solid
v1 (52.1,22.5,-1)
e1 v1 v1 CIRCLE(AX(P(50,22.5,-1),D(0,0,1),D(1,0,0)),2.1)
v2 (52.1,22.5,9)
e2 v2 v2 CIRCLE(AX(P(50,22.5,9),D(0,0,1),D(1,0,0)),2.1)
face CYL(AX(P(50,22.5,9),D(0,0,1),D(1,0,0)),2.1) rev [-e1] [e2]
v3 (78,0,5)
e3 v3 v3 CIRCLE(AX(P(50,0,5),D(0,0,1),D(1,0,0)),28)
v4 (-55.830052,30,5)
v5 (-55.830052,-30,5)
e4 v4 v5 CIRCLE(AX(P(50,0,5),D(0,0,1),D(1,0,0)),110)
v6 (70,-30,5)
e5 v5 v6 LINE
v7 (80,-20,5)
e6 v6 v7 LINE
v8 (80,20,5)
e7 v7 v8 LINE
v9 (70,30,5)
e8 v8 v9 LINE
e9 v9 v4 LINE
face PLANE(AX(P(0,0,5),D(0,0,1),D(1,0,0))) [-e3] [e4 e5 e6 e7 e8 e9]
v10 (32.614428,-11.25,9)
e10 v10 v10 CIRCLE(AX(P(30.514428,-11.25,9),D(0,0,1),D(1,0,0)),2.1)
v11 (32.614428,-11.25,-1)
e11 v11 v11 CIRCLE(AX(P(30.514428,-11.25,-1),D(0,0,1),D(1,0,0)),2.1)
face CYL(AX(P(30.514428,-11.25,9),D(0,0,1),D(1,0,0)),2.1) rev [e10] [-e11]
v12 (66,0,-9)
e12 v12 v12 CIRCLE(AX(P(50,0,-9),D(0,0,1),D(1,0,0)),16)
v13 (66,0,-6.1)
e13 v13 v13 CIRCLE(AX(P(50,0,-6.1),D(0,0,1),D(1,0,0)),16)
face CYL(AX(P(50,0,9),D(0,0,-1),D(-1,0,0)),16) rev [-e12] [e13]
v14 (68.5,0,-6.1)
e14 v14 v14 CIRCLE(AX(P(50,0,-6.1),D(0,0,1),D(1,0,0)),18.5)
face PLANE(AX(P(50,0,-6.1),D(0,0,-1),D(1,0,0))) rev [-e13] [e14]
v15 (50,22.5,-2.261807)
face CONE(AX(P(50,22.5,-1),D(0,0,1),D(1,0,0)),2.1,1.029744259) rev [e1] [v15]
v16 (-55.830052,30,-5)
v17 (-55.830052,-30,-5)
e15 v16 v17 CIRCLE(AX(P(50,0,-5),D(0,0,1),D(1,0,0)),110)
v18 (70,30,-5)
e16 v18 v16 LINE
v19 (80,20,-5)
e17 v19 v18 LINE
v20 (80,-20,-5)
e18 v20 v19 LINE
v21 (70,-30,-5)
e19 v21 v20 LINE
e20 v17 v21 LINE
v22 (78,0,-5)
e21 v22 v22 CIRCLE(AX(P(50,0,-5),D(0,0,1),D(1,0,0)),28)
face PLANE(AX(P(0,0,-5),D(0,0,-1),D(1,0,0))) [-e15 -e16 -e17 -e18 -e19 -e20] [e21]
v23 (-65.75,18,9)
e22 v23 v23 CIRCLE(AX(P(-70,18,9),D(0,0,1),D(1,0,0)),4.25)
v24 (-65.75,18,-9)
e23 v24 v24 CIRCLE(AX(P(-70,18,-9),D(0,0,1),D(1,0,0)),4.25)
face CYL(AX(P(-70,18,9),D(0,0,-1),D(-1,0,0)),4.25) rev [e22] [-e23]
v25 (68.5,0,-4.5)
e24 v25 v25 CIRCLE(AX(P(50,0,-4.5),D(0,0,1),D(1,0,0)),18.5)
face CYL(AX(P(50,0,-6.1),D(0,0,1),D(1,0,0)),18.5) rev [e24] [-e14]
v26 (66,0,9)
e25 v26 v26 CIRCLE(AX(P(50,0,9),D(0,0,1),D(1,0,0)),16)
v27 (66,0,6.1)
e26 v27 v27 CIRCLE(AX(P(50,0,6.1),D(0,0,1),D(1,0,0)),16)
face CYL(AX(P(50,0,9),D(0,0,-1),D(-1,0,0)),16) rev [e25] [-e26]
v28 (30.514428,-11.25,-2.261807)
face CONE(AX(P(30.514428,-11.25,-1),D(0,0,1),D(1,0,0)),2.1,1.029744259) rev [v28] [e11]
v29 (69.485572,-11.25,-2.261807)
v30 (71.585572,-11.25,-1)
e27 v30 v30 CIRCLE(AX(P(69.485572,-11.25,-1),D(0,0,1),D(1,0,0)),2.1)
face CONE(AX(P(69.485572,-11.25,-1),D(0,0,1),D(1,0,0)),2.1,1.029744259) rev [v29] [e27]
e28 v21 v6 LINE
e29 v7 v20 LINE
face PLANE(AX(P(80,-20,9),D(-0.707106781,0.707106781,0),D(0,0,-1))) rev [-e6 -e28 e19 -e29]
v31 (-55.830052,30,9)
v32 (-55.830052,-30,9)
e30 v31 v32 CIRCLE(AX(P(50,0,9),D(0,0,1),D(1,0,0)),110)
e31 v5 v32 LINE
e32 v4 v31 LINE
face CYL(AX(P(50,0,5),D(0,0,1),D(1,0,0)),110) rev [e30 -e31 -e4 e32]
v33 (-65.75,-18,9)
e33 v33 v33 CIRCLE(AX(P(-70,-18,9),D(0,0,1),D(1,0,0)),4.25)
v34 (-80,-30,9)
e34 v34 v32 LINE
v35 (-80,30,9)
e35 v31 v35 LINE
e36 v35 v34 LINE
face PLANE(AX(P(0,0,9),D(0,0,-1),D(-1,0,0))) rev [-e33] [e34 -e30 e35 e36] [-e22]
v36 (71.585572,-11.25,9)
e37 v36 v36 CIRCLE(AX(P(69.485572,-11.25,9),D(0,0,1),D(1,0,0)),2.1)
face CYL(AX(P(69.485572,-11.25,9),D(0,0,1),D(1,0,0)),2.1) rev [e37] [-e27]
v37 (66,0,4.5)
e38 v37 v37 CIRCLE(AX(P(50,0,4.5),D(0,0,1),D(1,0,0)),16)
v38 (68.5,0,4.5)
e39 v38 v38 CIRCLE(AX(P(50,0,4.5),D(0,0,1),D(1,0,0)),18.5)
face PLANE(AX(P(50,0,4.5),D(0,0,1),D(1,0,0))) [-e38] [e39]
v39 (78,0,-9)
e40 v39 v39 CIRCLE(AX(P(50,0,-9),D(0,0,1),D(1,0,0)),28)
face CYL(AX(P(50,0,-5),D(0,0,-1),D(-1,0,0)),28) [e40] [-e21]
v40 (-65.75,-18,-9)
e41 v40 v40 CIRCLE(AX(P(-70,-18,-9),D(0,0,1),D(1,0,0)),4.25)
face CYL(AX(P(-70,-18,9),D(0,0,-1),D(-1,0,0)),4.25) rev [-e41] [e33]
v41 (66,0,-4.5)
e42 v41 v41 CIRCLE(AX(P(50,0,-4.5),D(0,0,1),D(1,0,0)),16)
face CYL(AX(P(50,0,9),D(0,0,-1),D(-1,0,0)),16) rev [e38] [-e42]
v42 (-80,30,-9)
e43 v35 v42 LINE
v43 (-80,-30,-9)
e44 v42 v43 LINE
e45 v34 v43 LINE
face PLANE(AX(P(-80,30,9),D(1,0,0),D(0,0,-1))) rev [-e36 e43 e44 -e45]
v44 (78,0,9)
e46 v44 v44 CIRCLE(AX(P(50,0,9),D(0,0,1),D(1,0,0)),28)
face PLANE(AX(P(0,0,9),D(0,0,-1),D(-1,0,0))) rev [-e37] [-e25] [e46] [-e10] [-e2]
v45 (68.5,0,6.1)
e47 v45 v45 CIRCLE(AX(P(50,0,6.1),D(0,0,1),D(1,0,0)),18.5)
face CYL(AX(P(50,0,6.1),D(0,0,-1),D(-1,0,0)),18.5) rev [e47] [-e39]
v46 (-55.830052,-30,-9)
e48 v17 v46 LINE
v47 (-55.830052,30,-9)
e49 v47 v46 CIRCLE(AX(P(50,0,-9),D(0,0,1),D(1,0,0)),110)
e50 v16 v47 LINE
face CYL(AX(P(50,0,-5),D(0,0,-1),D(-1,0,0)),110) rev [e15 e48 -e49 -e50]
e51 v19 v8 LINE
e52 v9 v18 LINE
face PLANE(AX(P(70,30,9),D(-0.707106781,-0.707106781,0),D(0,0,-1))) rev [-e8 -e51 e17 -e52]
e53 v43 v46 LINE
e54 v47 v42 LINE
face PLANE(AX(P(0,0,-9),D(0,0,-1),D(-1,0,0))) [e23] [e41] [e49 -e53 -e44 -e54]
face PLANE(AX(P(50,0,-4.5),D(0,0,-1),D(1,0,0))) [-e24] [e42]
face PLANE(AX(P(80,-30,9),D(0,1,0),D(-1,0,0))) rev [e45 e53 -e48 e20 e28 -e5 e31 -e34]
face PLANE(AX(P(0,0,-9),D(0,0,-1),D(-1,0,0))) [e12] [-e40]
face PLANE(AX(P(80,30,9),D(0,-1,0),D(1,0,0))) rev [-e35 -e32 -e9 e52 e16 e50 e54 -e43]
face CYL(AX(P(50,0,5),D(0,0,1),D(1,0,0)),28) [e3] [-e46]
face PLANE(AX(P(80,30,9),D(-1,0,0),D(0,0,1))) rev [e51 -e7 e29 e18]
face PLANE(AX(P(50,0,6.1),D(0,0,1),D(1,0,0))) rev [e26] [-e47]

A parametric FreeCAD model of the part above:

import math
import FreeCAD as App
import Part
import Sketcher
Q = App.Units.Quantity


def edges_at(feature, points):
    """Names of the edges that pass closest to the given points."""
    edges = feature.Shape.Edges
    near = lambda p: min(range(len(edges)), key=lambda i: edges[i].distToShape(Part.Vertex(*p))[0])
    return sorted({f"Edge{near(p) + 1}" for p in points})


def add_polygon(sketch, points):
    """Adds a closed chain of lines whose ends are joined by coincident constraints."""
    first, n = sketch.GeometryCount, len(points)
    for a, b in zip(points, points[1:] + points[:1]):
        sketch.addGeometry(Part.LineSegment(App.Vector(*a, 0), App.Vector(*b, 0)), False)
    for i in range(n):
        sketch.addConstraint(Sketcher.Constraint("Coincident", first + i, 2, first + (i + 1) % n, 1))

doc = App.newDocument("Part")
params = doc.addObject("Spreadsheet::Sheet", "Params")
for row, (alias, value) in enumerate([
    ("sketch1_diameter", "32 mm"),
    ("sketch1_diameter2", "8.5 mm"),
    ("sketch1_width", "160 mm"),
    ("sketch1_height", "60 mm"),
    ("pad1_length", "18 mm"),
    ("sketch2_height", "10 mm"),
    ("sketch2_width", "2.1 mm"),
    ("groove_angle", "360 deg"),
    ("chamfer_size", "10 mm"),
    ("sketch3_diameter", "37 mm"),
    ("sketch3_diameter2", "32 mm"),
    ("pocket1_length", "1.6 mm"),
    ("sketch4_diameter", "56 mm"),
    ("sketch4_radius", "110 mm"),
    ("sketch4_height", "40 mm"),
    ("pocket2_length", "4 mm"),
], start=1):
    params.set(f"A{row}", alias)
    params.set(f"B{row}", "=" + value)
    params.setAlias(f"B{row}", alias)

body = doc.addObject("PartDesign::Body", "Body")

sketch1 = body.newObject("Sketcher::SketchObject", "Sketch")
sketch1.AttachmentSupport = (doc.getObject("XY_Plane"), [""])
sketch1.MapMode = "FlatFace"
add_polygon(sketch1, [(-80, 30), (-80, -30), (80, -30), (80, 30)])
sketch1.addGeometry(Part.Circle(App.Vector(-70, -18, 0), App.Vector(0, 0, 1), 4.2), False)
sketch1.addGeometry(Part.Circle(App.Vector(-70, 18, 0), App.Vector(0, 0, 1), 4.2), False)
sketch1.addGeometry(Part.Circle(App.Vector(50, 0, 0), App.Vector(0, 0, 1), 16), False)
sketch1.addConstraint([
    Sketcher.Constraint("Vertical", 0),
    Sketcher.Constraint("Horizontal", 1),
    Sketcher.Constraint("Vertical", 2),
    Sketcher.Constraint("Horizontal", 3),
    Sketcher.Constraint("Equal", 4, 5),
    Sketcher.Constraint("Symmetric", 0, 2, 2, 2, -1, 1),
    Sketcher.Constraint("Symmetric", 4, 3, 5, 3, -1),
    Sketcher.Constraint("PointOnObject", 6, 3, -1),
    Sketcher.Constraint("Diameter", 6, 32.0),
    Sketcher.Constraint("Diameter", 4, 8.5),
    Sketcher.Constraint("DistanceX", 1, 1, 1, 2, 160.0),
    Sketcher.Constraint("DistanceY", 0, 2, 0, 1, 60.0),
    Sketcher.Constraint("DistanceX", 4, 3, -1, 1, 70.0),
    Sketcher.Constraint("DistanceY", 4, 3, -1, 1, 18.0),
    Sketcher.Constraint("DistanceX", -1, 1, 6, 3, 50.0),
])
sketch1.setExpression("Constraints[12]", "Params.sketch1_diameter")
sketch1.setExpression("Constraints[13]", "Params.sketch1_diameter2")
sketch1.setExpression("Constraints[14]", "Params.sketch1_width")
sketch1.setExpression("Constraints[15]", "Params.sketch1_height")
pad1 = body.newObject("PartDesign::Pad", "Pad")
pad1.Profile = sketch1
pad1.setExpression("Length", "Params.pad1_length")
pad1.Midplane = True

sketch2 = body.newObject("Sketcher::SketchObject", "Sketch001")
sketch2.AttachmentSupport = (doc.getObject("YZ_Plane"), [""])
sketch2.MapMode = "FlatFace"
sketch2.AttachmentOffset = App.Placement(App.Vector(0, 0, 50), App.Rotation())
add_polygon(sketch2, [(22.5, -2.3), (22.5, 9), (20.4, 9), (20.4, -1)])
sketch2.addGeometry(Part.LineSegment(App.Vector(22.5, 9, 0), App.Vector(22.5, -2.3, 0)), True)
sketch2.addConstraint([
    Sketcher.Constraint("Vertical", 0),
    Sketcher.Constraint("Horizontal", 1),
    Sketcher.Constraint("Vertical", 2),
    Sketcher.Constraint("Vertical", 4),
    Sketcher.Constraint("Coincident", 4, 1, 0, 2),
    Sketcher.Constraint("Equal", 0, 4),
    Sketcher.Constraint("DistanceY", 2, 2, 2, 1, 10.0),
    Sketcher.Constraint("Angle", 3, Q("-31 deg")),
    Sketcher.Constraint("DistanceX", 1, 2, 1, 1, 2.1),
    Sketcher.Constraint("DistanceY", -1, 1, 0, 2, 9.0),
    Sketcher.Constraint("DistanceX", -1, 1, 0, 2, 22.5),
])
sketch2.setExpression("Constraints[10]", "Params.sketch2_height")
sketch2.setExpression("Constraints[12]", "Params.sketch2_width")
groove = body.newObject("PartDesign::Groove", "Groove")
groove.Profile = sketch2
groove.ReferenceAxis = (sketch2, ["Axis0"])
groove.setExpression("Angle", "Params.groove_angle")
doc.recompute()

datumline = body.newObject("PartDesign::Line", "DatumLine")
datumline.Placement = App.Placement(App.Vector(50, 0, 0), App.Rotation(App.Vector(0, 0, 1), App.Vector(0, 0, 1)))
polarpattern = body.newObject("PartDesign::PolarPattern", "PolarPattern")
polarpattern.Originals = [groove]
polarpattern.Axis = (datumline, [""])
polarpattern.Angle = 360
polarpattern.Occurrences = 3
body.Tip = polarpattern
doc.recompute()

chamfer = body.newObject("PartDesign::Chamfer", "Chamfer")
chamfer.Base = (polarpattern, edges_at(polarpattern, [(80, 30, 0), (80, -30, 0)]))
chamfer.setExpression("Size", "Params.chamfer_size")

sketch3 = body.newObject("Sketcher::SketchObject", "Sketch002")
sketch3.AttachmentSupport = (doc.getObject("XY_Plane"), [""])
sketch3.MapMode = "FlatFace"
sketch3.AttachmentOffset = App.Placement(App.Vector(0, 0, 4.5), App.Rotation())
sketch3.addGeometry([
    Part.Circle(App.Vector(50, 0, 0), App.Vector(0, 0, 1), 18),
    Part.Circle(App.Vector(50, 0, 0), App.Vector(0, 0, 1), 16),
], False)
sketch3.addConstraint([
    Sketcher.Constraint("Coincident", 1, 3, 0, 3),
    Sketcher.Constraint("PointOnObject", 0, 3, -1),
    Sketcher.Constraint("Diameter", 0, 37.0),
    Sketcher.Constraint("Diameter", 1, 32.0),
    Sketcher.Constraint("DistanceX", -1, 1, 0, 3, 50.0),
])
sketch3.setExpression("Constraints[2]", "Params.sketch3_diameter")
sketch3.setExpression("Constraints[3]", "Params.sketch3_diameter2")
pocket1 = body.newObject("PartDesign::Pocket", "Pocket")
pocket1.Profile = sketch3
pocket1.setExpression("Length", "Params.pocket1_length")
pocket1.Reversed = True
doc.recompute()

mirrored = body.newObject("PartDesign::Mirrored", "Mirrored")
mirrored.Originals = [pocket1]
mirrored.MirrorPlane = (doc.getObject("XY_Plane"), [""])
body.Tip = mirrored

sketch4 = body.newObject("Sketcher::SketchObject", "Sketch003")
sketch4.AttachmentSupport = (doc.getObject("XY_Plane"), [""])
sketch4.MapMode = "FlatFace"
sketch4.AttachmentOffset = App.Placement(App.Vector(0, 0, 9), App.Rotation())
sketch4.addGeometry([
    Part.ArcOfCircle(Part.Circle(App.Vector(50, 0, 0), App.Vector(0, 0, 1), 110), math.radians(164), math.radians(196)),
    Part.LineSegment(App.Vector(-56, -30, 0), App.Vector(70, -30, 0)),
    Part.LineSegment(App.Vector(70, -30, 0), App.Vector(80, -20, 0)),
    Part.LineSegment(App.Vector(80, -20, 0), App.Vector(80, 20, 0)),
    Part.LineSegment(App.Vector(80, 20, 0), App.Vector(70, 30, 0)),
    Part.LineSegment(App.Vector(70, 30, 0), App.Vector(-56, 30, 0)),
    Part.Circle(App.Vector(50, 0, 0), App.Vector(0, 0, 1), 28),
], False)
sketch4.addConstraint([
    Sketcher.Constraint("Coincident", 0, 2, 1, 1),
    Sketcher.Constraint("Coincident", 1, 2, 2, 1),
    Sketcher.Constraint("Coincident", 2, 2, 3, 1),
    Sketcher.Constraint("Coincident", 3, 2, 4, 1),
    Sketcher.Constraint("Coincident", 4, 2, 5, 1),
    Sketcher.Constraint("Coincident", 5, 2, 0, 1),
    Sketcher.Constraint("Horizontal", 1),
    Sketcher.Constraint("Vertical", 3),
    Sketcher.Constraint("Horizontal", 5),
    Sketcher.Constraint("Coincident", 6, 3, 0, 3),
    Sketcher.Constraint("Symmetric", 1, 2, 4, 2, -1),
    Sketcher.Constraint("PointOnObject", 0, 3, -1),
    Sketcher.Constraint("Perpendicular", 2, 4),
    Sketcher.Constraint("Equal", 2, 4),
    Sketcher.Constraint("Diameter", 6, 56.0),
    Sketcher.Constraint("Radius", 0, 110.0),
    Sketcher.Constraint("DistanceY", 3, 1, 3, 2, 40.0),
    Sketcher.Constraint("DistanceX", -1, 1, 0, 3, 50.0),
    Sketcher.Constraint("DistanceY", 0, 2, -1, 1, 30.0),
    Sketcher.Constraint("DistanceX", -1, 1, 1, 2, 70.0),
])
sketch4.setExpression("Constraints[14]", "Params.sketch4_diameter")
sketch4.setExpression("Constraints[15]", "Params.sketch4_radius")
sketch4.setExpression("Constraints[16]", "Params.sketch4_height")
pocket2 = body.newObject("PartDesign::Pocket", "Pocket001")
pocket2.Profile = sketch4
pocket2.setExpression("Length", "Params.pocket2_length")
doc.recompute()

mirrored2 = body.newObject("PartDesign::Mirrored", "Mirrored001")
mirrored2.Originals = [pocket2]
mirrored2.MirrorPlane = (doc.getObject("XY_Plane"), [""])
body.Tip = mirrored2

doc.recompute()
